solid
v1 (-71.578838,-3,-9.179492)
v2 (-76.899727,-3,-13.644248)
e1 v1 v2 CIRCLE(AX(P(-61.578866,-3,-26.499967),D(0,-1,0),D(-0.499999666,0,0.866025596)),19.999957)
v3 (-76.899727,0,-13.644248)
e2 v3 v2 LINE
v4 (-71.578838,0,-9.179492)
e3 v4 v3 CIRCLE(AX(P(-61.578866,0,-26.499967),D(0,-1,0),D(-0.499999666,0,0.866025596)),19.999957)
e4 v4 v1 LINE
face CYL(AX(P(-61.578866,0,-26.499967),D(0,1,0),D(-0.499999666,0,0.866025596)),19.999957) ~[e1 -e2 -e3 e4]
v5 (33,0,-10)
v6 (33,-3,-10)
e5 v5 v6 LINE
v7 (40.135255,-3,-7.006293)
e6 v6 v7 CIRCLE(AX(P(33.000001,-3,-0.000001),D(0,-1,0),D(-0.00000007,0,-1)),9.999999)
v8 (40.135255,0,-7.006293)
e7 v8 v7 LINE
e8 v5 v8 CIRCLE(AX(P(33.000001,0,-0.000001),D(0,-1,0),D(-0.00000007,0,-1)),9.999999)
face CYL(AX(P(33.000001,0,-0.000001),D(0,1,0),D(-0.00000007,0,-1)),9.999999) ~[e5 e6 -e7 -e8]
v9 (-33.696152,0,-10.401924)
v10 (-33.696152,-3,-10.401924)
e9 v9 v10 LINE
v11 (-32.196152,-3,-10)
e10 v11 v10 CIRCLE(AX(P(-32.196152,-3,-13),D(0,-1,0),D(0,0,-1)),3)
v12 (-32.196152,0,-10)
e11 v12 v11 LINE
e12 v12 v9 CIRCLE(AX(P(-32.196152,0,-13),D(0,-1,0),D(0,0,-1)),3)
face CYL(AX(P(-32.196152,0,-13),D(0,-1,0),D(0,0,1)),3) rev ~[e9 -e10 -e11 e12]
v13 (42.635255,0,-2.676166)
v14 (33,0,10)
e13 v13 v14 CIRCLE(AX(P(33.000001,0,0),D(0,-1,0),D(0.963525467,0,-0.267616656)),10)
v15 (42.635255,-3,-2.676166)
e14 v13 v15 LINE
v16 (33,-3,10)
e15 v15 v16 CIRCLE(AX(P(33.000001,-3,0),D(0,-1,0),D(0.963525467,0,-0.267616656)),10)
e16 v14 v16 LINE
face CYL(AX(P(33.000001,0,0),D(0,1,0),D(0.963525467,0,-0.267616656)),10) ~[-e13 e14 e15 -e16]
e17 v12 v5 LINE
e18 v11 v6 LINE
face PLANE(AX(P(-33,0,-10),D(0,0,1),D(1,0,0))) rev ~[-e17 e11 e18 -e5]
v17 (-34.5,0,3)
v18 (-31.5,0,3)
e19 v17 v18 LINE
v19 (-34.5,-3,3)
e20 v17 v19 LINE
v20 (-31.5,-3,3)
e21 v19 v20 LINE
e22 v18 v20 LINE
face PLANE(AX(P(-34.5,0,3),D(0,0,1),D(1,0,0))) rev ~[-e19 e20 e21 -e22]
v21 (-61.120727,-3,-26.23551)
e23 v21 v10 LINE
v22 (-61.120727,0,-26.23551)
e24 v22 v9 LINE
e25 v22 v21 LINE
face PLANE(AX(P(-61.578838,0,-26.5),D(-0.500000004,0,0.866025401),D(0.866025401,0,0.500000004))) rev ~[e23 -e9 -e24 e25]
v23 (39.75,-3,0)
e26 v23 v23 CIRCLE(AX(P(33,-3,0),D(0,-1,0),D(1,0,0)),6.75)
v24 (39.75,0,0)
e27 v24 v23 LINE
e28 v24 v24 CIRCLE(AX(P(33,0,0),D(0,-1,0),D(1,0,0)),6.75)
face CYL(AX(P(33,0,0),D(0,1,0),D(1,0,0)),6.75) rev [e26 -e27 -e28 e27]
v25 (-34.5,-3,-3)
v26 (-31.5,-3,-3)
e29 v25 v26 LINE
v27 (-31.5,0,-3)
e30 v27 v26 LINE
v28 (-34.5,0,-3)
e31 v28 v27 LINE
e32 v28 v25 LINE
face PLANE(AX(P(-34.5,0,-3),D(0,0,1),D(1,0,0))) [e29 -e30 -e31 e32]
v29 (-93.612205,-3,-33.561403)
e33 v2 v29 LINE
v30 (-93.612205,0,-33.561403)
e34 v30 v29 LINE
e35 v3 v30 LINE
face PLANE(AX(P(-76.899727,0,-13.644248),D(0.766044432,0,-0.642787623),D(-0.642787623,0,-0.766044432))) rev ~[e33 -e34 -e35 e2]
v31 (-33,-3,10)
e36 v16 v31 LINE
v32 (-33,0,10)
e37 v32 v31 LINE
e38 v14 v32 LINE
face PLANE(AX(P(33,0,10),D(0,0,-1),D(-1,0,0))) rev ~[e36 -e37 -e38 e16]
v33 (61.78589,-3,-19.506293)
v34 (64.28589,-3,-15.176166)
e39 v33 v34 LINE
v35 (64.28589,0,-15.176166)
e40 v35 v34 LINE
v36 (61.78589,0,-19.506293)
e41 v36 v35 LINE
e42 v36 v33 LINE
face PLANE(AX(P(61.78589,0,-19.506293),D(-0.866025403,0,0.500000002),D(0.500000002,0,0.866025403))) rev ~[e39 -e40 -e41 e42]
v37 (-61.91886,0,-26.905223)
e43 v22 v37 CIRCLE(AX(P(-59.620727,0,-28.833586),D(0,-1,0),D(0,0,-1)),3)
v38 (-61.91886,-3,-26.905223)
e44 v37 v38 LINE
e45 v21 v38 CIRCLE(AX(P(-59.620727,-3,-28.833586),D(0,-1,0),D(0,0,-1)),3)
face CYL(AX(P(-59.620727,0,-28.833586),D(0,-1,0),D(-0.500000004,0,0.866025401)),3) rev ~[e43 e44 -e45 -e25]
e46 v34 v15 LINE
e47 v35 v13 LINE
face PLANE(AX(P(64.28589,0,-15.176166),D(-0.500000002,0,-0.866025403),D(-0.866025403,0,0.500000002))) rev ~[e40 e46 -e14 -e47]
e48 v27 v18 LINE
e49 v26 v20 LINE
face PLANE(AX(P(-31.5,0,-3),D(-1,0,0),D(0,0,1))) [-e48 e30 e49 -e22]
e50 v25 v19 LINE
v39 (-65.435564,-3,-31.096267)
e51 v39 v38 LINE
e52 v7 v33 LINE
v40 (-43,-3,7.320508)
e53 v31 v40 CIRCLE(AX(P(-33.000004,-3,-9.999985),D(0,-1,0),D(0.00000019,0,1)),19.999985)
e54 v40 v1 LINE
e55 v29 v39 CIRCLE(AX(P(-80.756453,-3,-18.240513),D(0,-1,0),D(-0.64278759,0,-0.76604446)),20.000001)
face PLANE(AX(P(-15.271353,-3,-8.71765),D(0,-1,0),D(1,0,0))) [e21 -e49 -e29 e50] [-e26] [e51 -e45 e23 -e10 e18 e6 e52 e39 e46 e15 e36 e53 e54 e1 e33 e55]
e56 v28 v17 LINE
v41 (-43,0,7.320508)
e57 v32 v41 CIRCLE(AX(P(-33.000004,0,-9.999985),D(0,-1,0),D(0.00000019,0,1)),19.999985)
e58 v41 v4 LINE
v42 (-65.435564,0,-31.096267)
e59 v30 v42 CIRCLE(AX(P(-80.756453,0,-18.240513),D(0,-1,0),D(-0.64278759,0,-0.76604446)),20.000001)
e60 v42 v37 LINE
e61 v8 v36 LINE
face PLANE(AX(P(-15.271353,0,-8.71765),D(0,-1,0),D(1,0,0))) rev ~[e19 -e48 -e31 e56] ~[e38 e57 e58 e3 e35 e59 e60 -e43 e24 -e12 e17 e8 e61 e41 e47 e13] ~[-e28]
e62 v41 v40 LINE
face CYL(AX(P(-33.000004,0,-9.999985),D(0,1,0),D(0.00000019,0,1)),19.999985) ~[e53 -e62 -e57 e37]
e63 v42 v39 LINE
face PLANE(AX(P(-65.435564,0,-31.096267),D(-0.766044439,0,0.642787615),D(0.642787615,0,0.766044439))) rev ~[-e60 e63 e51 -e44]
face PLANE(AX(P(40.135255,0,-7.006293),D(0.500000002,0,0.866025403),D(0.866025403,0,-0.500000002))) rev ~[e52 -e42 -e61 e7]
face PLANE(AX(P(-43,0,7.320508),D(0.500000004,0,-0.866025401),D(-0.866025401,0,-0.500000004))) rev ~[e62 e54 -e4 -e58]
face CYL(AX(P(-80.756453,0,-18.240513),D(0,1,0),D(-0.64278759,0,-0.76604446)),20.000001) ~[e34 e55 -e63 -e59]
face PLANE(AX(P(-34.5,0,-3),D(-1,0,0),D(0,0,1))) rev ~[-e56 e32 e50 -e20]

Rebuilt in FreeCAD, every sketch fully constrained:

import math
import FreeCAD as App
import Part
import Sketcher

V = App.Vector


def edges_at(feature, points):
    """Names of the edges that pass closest to the given points."""
    edges = feature.Shape.Edges
    near = lambda p: min(range(len(edges)), key=lambda i: edges[i].distToShape(Part.Vertex(*p))[0])
    return sorted({f"Edge{near(p) + 1}" for p in points})


def add_polygon(sketch, points):
    """Adds a closed chain of lines whose ends are joined by coincident constraints."""
    first, n = sketch.GeometryCount, len(points)
    for a, b in zip(points, points[1:] + points[:1]):
        sketch.addGeometry(Part.LineSegment(App.Vector(*a, 0), App.Vector(*b, 0)), False)
    for i in range(n):
        sketch.addConstraint(Sketcher.Constraint("Coincident", first + i, 2, first + (i + 1) % n, 1))

doc = App.newDocument("Part")
params = doc.addObject("Spreadsheet::Sheet", "Params")
for row, (alias, value) in enumerate([
    ("sketch1_radius", "9.999999 mm"),
    ("sketch1_radius2", "10 mm"),
    ("sketch1_radius3", "20.000001 mm"),
    ("sketch1_diameter", "13.5 mm"),
    ("sketch1_width", "66 mm"),
    ("pad1_length", "3 mm"),
    ("fillet_radius", "3 mm"),
], start=1):
    params.set(f"A{row}", alias)
    params.set(f"B{row}", "=" + value)
    params.setAlias(f"B{row}", alias)

body = doc.addObject("PartDesign::Body", "Body")

# Sketch on XZ plane
sketch1 = body.newObject("Sketcher::SketchObject", "Sketch")
sketch1.AttachmentSupport = (doc.getObject("XZ_Plane"), [""])
sketch1.MapMode = "FlatFace"
sketch1.addGeometry(Part.LineSegment(V(-33, -10, 0), V(33, -10, 0)), False)  # 0
sketch1.addGeometry(Part.ArcOfCircle(Part.Circle(V(33.000001, -0.000001, 0), V(0, 0, 1), 9.999999), math.radians(-90.000004), math.radians(-44.477513)), False)  # 1
sketch1.addGeometry(Part.LineSegment(V(40.135255, -7.006293, 0), V(61.78589, -19.506293, 0)), False)  # 2
sketch1.addGeometry(Part.LineSegment(V(61.78589, -19.506293, 0), V(64.28589, -15.176166, 0)), False)  # 3
sketch1.addGeometry(Part.LineSegment(V(64.28589, -15.176166, 0), V(42.635255, -2.676166, 0)), False)  # 4
sketch1.addGeometry(Part.ArcOfCircle(Part.Circle(V(33.000001, 0, 0), V(0, 0, 1), 10), math.radians(-15.522493), math.radians(90.000004)), False)  # 5
sketch1.addGeometry(Part.LineSegment(V(33, 10, 0), V(-33, 10, 0)), False)  # 6
sketch1.addGeometry(Part.ArcOfCircle(Part.Circle(V(-33.000004, -9.999985, 0), V(0, 0, 1), 19.999985), math.radians(89.999989), math.radians(120.000012)), False)  # 7
sketch1.addGeometry(Part.LineSegment(V(-43, 7.320508, 0), V(-71.578838, -9.179492, 0)), False)  # 8
sketch1.addGeometry(Part.ArcOfCircle(Part.Circle(V(-61.578866, -26.499967, 0), V(0, 0, 1), 19.999957), math.radians(119.999978), math.radians(140.000022)), False)  # 9
sketch1.addGeometry(Part.LineSegment(V(-76.899727, -13.644248, 0), V(-93.612205, -33.561403, 0)), False)  # 10
sketch1.addGeometry(Part.ArcOfCircle(Part.Circle(V(-80.756453, -18.240513, 0), V(0, 0, 1), 20.000001), math.radians(-129.999999), math.radians(-40.000004)), False)  # 11
sketch1.addGeometry(Part.LineSegment(V(-65.435564, -31.096267, 0), V(-61.578838, -26.5, 0)), False)  # 12
sketch1.addGeometry(Part.LineSegment(V(-61.578838, -26.5, 0), V(-33, -10, 0)), False)  # 13
add_polygon(sketch1, [(-31.5, -3), (-34.5, -3), (-34.5, 3), (-31.5, 3)])  # lines 14-17
sketch1.addGeometry(Part.Circle(V(33, 0, 0), V(0, 0, 1), 6.75), False)  # 18
sketch1.addConstraint(Sketcher.Constraint("Coincident", 0, 2, 1, 1))
sketch1.addConstraint(Sketcher.Constraint("Coincident", 1, 2, 2, 1))
sketch1.addConstraint(Sketcher.Constraint("Coincident", 2, 2, 3, 1))
sketch1.addConstraint(Sketcher.Constraint("Coincident", 3, 2, 4, 1))
sketch1.addConstraint(Sketcher.Constraint("Coincident", 4, 2, 5, 1))
sketch1.addConstraint(Sketcher.Constraint("Coincident", 5, 2, 6, 1))
sketch1.addConstraint(Sketcher.Constraint("Coincident", 6, 2, 7, 1))
sketch1.addConstraint(Sketcher.Constraint("Coincident", 7, 2, 8, 1))
sketch1.addConstraint(Sketcher.Constraint("Coincident", 8, 2, 9, 1))
sketch1.addConstraint(Sketcher.Constraint("Coincident", 9, 2, 10, 1))
sketch1.addConstraint(Sketcher.Constraint("Coincident", 10, 2, 11, 1))
sketch1.addConstraint(Sketcher.Constraint("Coincident", 11, 2, 12, 1))
sketch1.addConstraint(Sketcher.Constraint("Coincident", 12, 2, 13, 1))
sketch1.addConstraint(Sketcher.Constraint("Coincident", 13, 2, 0, 1))
sketch1.addConstraint(Sketcher.Constraint("Horizontal", 0))
sketch1.addConstraint(Sketcher.Constraint("Horizontal", 6))
sketch1.addConstraint(Sketcher.Constraint("Horizontal", 14))
sketch1.addConstraint(Sketcher.Constraint("Vertical", 15))
sketch1.addConstraint(Sketcher.Constraint("Horizontal", 16))
sketch1.addConstraint(Sketcher.Constraint("Vertical", 17))
sketch1.addConstraint(Sketcher.Constraint("Coincident", 5, 3, 1, 3))
sketch1.addConstraint(Sketcher.Constraint("Coincident", 18, 3, 1, 3))
sketch1.addConstraint(Sketcher.Constraint("PointOnObject", 1, 3, -1))
sketch1.addConstraint(Sketcher.Constraint("Radius", 1, 9.999999))
sketch1.addConstraint(Sketcher.Constraint("Radius", 5, 10.0))
sketch1.addConstraint(Sketcher.Constraint("Radius", 11, 20.000001))
sketch1.addConstraint(Sketcher.Constraint("Diameter", 18, 13.5))
sketch1.addConstraint(Sketcher.Constraint("DistanceX", 0, 1, 0, 2, 66.0))
sketch1.addConstraint(Sketcher.Constraint("DistanceX", 6, 2, 6, 1, 66.0))
sketch1.addConstraint(Sketcher.Constraint("DistanceX", 14, 2, 14, 1, 3.0))
sketch1.addConstraint(Sketcher.Constraint("DistanceY", 15, 1, 15, 2, 6.0))
sketch1.addConstraint(Sketcher.Constraint("Distance", 2, 25.0))
sketch1.addConstraint(Sketcher.Constraint("Distance", 3, 5.0))
sketch1.addConstraint(Sketcher.Constraint("Distance", 4, 25.0))
sketch1.addConstraint(Sketcher.Constraint("Distance", 8, 33.0))
sketch1.addConstraint(Sketcher.Constraint("Distance", 10, 26.0))
sketch1.addConstraint(Sketcher.Constraint("Distance", 12, 6.0))
sketch1.addConstraint(Sketcher.Constraint("Distance", 13, 33.0))
sketch1.addConstraint(Sketcher.Constraint("DistanceX", -1, 1, 1, 3, 33.000001))
sketch1.addConstraint(Sketcher.Constraint("DistanceX", -1, 1, 0, 2, 33.0))
sketch1.addConstraint(Sketcher.Constraint("DistanceX", -1, 1, 5, 2, 33.0))
sketch1.addConstraint(Sketcher.Constraint("DistanceX", 7, 2, -1, 1, 43.0))
sketch1.addConstraint(Sketcher.Constraint("DistanceY", 14, 2, -1, 1, 3.0))
sketch1.addConstraint(Sketcher.Constraint("DistanceX", 8, 2, 12, 2, 10.0))
sketch1.addConstraint(Sketcher.Constraint("DistanceY", 12, 2, -1, 1, 26.5))
sketch1.addConstraint(Sketcher.Constraint("DistanceX", 14, 2, -1, 1, 34.5))
sketch1.addConstraint(Sketcher.Constraint("DistanceY", 2, 2, 1, 2, 12.5))
sketch1.addConstraint(Sketcher.Constraint("DistanceX", 2, 2, 3, 2, 2.5))
sketch1.addConstraint(Sketcher.Constraint("DistanceX", 1, 2, 4, 2, 2.5))
sketch1.addConstraint(Sketcher.Constraint("Radius", 7, 19.999985))
sketch1.addConstraint(Sketcher.Constraint("Radius", 9, 19.999957))
sketch1.addConstraint(Sketcher.Constraint("DistanceX", 10, 2, 7, 3, 60.612201))
sketch1.addConstraint(Sketcher.Constraint("DistanceY", 11, 2, 9, 3, 4.5963))
sketch1.addConstraint(Sketcher.Constraint("DistanceY", 9, 2, -1, 1, 13.644248))
sketch1.addConstraint(Sketcher.Constraint("DistanceY", 9, 3, 7, 3, 16.499981))
sketch1.addConstraint(Sketcher.Constraint("DistanceX", 11, 3, 7, 3, 47.756449))
sketch1.setExpression("Constraints[27]", "Params.sketch1_radius")
sketch1.setExpression("Constraints[28]", "Params.sketch1_radius2")
sketch1.setExpression("Constraints[29]", "Params.sketch1_radius3")
sketch1.setExpression("Constraints[30]", "Params.sketch1_diameter")
sketch1.setExpression("Constraints[31]", "Params.sketch1_width")
pad1 = body.newObject("PartDesign::Pad", "Pad")
pad1.Profile = sketch1
pad1.setExpression("Length", "Params.pad1_length")
doc.recompute()

fillet = body.newObject("PartDesign::Fillet", "Fillet")
fillet.Base = (pad1, edges_at(pad1, [(-33, -1.5, -10), (-61.579, -1.5, -26.5)]))
fillet.setExpression("Radius", "Params.fillet_radius")

doc.recompute()
